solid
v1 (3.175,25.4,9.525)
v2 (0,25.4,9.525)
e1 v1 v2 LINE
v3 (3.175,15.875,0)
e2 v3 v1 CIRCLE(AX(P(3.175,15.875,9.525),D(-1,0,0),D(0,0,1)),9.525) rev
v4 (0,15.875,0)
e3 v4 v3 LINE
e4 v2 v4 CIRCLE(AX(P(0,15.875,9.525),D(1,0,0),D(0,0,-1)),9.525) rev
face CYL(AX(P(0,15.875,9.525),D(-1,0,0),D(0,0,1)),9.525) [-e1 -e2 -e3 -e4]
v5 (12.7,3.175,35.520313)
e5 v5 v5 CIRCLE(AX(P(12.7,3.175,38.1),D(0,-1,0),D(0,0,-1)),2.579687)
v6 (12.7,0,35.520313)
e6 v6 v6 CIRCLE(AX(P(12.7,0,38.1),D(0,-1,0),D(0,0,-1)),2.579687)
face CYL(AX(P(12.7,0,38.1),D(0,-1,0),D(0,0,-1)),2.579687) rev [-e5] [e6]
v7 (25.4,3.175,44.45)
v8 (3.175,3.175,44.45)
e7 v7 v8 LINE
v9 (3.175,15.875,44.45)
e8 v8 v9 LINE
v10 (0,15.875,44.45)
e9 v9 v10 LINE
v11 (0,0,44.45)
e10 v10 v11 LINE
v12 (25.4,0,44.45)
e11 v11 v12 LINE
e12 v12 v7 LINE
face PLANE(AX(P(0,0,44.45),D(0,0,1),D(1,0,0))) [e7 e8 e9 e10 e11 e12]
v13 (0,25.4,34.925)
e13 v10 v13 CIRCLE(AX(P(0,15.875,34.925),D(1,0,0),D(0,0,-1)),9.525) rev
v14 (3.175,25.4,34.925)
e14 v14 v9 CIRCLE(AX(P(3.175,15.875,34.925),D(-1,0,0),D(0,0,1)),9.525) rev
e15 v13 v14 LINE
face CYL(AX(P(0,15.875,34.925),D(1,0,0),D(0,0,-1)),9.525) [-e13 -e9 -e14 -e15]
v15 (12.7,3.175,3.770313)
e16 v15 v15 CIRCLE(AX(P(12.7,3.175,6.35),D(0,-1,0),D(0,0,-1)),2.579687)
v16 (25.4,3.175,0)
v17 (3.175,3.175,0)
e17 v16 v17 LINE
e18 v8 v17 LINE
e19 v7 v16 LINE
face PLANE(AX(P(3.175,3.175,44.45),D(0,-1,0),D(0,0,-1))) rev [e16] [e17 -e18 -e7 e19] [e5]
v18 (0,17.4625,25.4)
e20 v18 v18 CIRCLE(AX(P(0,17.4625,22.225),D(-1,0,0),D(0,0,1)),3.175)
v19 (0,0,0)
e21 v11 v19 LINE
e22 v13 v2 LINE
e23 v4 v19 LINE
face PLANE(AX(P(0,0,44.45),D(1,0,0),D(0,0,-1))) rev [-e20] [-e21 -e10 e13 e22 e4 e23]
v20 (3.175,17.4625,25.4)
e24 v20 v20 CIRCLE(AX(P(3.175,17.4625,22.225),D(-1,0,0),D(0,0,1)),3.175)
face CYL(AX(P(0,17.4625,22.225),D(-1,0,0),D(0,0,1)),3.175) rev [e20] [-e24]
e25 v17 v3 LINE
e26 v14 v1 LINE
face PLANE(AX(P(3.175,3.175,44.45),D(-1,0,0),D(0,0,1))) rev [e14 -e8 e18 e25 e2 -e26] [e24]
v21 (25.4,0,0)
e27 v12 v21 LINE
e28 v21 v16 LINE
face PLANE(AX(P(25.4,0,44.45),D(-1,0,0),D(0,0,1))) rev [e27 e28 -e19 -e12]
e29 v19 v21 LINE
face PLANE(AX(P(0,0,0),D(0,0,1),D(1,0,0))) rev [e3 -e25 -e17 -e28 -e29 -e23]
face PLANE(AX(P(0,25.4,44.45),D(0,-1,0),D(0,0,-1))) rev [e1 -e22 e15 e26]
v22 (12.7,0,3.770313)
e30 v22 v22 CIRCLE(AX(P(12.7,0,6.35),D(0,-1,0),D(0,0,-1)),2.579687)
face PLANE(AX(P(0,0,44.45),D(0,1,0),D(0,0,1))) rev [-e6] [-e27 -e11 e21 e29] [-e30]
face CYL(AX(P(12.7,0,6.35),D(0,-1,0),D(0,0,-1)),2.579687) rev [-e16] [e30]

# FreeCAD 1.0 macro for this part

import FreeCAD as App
import Part
import Sketcher
Q = App.Units.Quantity


def edges_at(feature, points):
    """Names of the edges that pass closest to the given points."""
    edges = feature.Shape.Edges
    near = lambda p: min(range(len(edges)), key=lambda i: edges[i].distToShape(Part.Vertex(*p))[0])
    return sorted({f"Edge{near(p) + 1}" for p in points})


def add_polygon(sketch, points):
    """Adds a closed chain of lines whose ends are joined by coincident constraints."""
    first, n = sketch.GeometryCount, len(points)
    for a, b in zip(points, points[1:] + points[:1]):
        sketch.addGeometry(Part.LineSegment(App.Vector(*a, 0), App.Vector(*b, 0)), False)
    for i in range(n):
        sketch.addConstraint(Sketcher.Constraint("Coincident", first + i, 2, first + (i + 1) % n, 1))

doc = App.newDocument("Part")
params = doc.addObject("Spreadsheet::Sheet", "Params")
for row, (alias, value) in enumerate([
    ("sketch1_width", "1 in"),
    ("sketch1_width2", "0.875 in"),
    ("pad1_length", "1.75 in"),
    ("sketch2_diameter", "0.25 in"),
    ("hole_diameter", "0.25 in"),
    ("fillet_radius", "0.375 in"),
    ("sketch3_diameter", "0.203125 in"),
    ("hole2_diameter", "0.203125 in"),
], start=1):
    params.set(f"A{row}", alias)
    params.set(f"B{row}", "=" + value)
    params.setAlias(f"B{row}", alias)

body = doc.addObject("PartDesign::Body", "Body")

# Sketch on XY plane
sketch1 = doc.addObject("Sketcher::SketchObject", "Sketch")
body.addObject(sketch1)
sketch1.AttachmentSupport = (doc.XY_Plane, [""])
sketch1.MapMode = "FlatFace"
add_polygon(sketch1, [(0, 25.4), (0, 0), (25.4, 0), (25.4, 3.2), (3.2, 3.2), (3.2, 25.4)])  # lines 0-5
sketch1.addConstraint([
    Sketcher.Constraint("Vertical", 0),
    Sketcher.Constraint("Horizontal", 1),
    Sketcher.Constraint("Vertical", 2),
    Sketcher.Constraint("Horizontal", 3),
    Sketcher.Constraint("Vertical", 4),
    Sketcher.Constraint("Horizontal", 5),
    Sketcher.Constraint("Coincident", 0, 2, -1, 1),
    Sketcher.Constraint("Equal", 1, 0),
    Sketcher.Constraint("Equal", 5, 2),
    Sketcher.Constraint("DistanceX", 1, 1, 1, 2, Q("1 in")),
    Sketcher.Constraint("DistanceX", 3, 2, 3, 1, Q("0.875 in")),
])
sketch1.setExpression("Constraints[15]", "Params.sketch1_width")
sketch1.setExpression("Constraints[16]", "Params.sketch1_width2")
pad1 = doc.addObject("PartDesign::Pad", "Pad")
body.addObject(pad1)
pad1.Profile = sketch1
pad1.setExpression("Length", "Params.pad1_length")

# Sketch on YZ plane
sketch2 = doc.addObject("Sketcher::SketchObject", "Sketch001")
body.addObject(sketch2)
sketch2.AttachmentSupport = (doc.YZ_Plane, [""])
sketch2.MapMode = "FlatFace"
sketch2.addGeometry(Part.Circle(App.Vector(17.5, 22.2, 0), App.Vector(0, 0, 1), 3.2), False)
sketch2.addConstraint([
    Sketcher.Constraint("Diameter", 0, Q("0.25 in")),
    Sketcher.Constraint("DistanceX", -1, 1, 0, 3, Q("0.6875 in")),
    Sketcher.Constraint("DistanceY", -1, 1, 0, 3, Q("0.875 in")),
])
sketch2.setExpression("Constraints[0]", "Params.sketch2_diameter")
doc.recompute()
hole = doc.addObject("PartDesign::Hole", "Hole")
body.addObject(hole)
hole.Profile = sketch2
hole.ThreadType = "None"
hole.setExpression("Diameter", "Params.hole_diameter")
hole.DepthType = "ThroughAll"
hole.Reversed = True
doc.recompute()

fillet = doc.addObject("PartDesign::Fillet", "Fillet")
body.addObject(fillet)
fillet.Base = (hole, edges_at(hole, [(1.587, 25.4, 44.45), (1.587, 25.4, 0)]))
fillet.setExpression("Radius", "Params.fillet_radius")

# Sketch on XZ plane
sketch3 = doc.addObject("Sketcher::SketchObject", "Sketch002")
body.addObject(sketch3)
sketch3.AttachmentSupport = (doc.XZ_Plane, [""])
sketch3.MapMode = "FlatFace"
sketch3.addGeometry([
    Part.Circle(App.Vector(12.7, 38.1, 0), App.Vector(0, 0, 1), 2.6),
    Part.Circle(App.Vector(12.7, 6.3, 0), App.Vector(0, 0, 1), 2.6),
], False)
sketch3.addConstraint([
    Sketcher.Constraint("Equal", 0, 1),
    Sketcher.Constraint("Vertical", 0, 3, 1, 3),
    Sketcher.Constraint("Diameter", 0, Q("0.203125 in")),
    Sketcher.Constraint("DistanceX", -1, 1, 0, 3, Q("0.5 in")),
    Sketcher.Constraint("DistanceY", -1, 1, 0, 3, Q("1.5 in")),
    Sketcher.Constraint("DistanceY", -1, 1, 1, 3, Q("0.25 in")),
])
sketch3.setExpression("Constraints[2]", "Params.sketch3_diameter")
doc.recompute()
hole2 = doc.addObject("PartDesign::Hole", "Hole001")
body.addObject(hole2)
hole2.Profile = sketch3
hole2.ThreadType = "None"
hole2.setExpression("Diameter", "Params.hole2_diameter")
hole2.DepthType = "ThroughAll"

doc.recompute()
